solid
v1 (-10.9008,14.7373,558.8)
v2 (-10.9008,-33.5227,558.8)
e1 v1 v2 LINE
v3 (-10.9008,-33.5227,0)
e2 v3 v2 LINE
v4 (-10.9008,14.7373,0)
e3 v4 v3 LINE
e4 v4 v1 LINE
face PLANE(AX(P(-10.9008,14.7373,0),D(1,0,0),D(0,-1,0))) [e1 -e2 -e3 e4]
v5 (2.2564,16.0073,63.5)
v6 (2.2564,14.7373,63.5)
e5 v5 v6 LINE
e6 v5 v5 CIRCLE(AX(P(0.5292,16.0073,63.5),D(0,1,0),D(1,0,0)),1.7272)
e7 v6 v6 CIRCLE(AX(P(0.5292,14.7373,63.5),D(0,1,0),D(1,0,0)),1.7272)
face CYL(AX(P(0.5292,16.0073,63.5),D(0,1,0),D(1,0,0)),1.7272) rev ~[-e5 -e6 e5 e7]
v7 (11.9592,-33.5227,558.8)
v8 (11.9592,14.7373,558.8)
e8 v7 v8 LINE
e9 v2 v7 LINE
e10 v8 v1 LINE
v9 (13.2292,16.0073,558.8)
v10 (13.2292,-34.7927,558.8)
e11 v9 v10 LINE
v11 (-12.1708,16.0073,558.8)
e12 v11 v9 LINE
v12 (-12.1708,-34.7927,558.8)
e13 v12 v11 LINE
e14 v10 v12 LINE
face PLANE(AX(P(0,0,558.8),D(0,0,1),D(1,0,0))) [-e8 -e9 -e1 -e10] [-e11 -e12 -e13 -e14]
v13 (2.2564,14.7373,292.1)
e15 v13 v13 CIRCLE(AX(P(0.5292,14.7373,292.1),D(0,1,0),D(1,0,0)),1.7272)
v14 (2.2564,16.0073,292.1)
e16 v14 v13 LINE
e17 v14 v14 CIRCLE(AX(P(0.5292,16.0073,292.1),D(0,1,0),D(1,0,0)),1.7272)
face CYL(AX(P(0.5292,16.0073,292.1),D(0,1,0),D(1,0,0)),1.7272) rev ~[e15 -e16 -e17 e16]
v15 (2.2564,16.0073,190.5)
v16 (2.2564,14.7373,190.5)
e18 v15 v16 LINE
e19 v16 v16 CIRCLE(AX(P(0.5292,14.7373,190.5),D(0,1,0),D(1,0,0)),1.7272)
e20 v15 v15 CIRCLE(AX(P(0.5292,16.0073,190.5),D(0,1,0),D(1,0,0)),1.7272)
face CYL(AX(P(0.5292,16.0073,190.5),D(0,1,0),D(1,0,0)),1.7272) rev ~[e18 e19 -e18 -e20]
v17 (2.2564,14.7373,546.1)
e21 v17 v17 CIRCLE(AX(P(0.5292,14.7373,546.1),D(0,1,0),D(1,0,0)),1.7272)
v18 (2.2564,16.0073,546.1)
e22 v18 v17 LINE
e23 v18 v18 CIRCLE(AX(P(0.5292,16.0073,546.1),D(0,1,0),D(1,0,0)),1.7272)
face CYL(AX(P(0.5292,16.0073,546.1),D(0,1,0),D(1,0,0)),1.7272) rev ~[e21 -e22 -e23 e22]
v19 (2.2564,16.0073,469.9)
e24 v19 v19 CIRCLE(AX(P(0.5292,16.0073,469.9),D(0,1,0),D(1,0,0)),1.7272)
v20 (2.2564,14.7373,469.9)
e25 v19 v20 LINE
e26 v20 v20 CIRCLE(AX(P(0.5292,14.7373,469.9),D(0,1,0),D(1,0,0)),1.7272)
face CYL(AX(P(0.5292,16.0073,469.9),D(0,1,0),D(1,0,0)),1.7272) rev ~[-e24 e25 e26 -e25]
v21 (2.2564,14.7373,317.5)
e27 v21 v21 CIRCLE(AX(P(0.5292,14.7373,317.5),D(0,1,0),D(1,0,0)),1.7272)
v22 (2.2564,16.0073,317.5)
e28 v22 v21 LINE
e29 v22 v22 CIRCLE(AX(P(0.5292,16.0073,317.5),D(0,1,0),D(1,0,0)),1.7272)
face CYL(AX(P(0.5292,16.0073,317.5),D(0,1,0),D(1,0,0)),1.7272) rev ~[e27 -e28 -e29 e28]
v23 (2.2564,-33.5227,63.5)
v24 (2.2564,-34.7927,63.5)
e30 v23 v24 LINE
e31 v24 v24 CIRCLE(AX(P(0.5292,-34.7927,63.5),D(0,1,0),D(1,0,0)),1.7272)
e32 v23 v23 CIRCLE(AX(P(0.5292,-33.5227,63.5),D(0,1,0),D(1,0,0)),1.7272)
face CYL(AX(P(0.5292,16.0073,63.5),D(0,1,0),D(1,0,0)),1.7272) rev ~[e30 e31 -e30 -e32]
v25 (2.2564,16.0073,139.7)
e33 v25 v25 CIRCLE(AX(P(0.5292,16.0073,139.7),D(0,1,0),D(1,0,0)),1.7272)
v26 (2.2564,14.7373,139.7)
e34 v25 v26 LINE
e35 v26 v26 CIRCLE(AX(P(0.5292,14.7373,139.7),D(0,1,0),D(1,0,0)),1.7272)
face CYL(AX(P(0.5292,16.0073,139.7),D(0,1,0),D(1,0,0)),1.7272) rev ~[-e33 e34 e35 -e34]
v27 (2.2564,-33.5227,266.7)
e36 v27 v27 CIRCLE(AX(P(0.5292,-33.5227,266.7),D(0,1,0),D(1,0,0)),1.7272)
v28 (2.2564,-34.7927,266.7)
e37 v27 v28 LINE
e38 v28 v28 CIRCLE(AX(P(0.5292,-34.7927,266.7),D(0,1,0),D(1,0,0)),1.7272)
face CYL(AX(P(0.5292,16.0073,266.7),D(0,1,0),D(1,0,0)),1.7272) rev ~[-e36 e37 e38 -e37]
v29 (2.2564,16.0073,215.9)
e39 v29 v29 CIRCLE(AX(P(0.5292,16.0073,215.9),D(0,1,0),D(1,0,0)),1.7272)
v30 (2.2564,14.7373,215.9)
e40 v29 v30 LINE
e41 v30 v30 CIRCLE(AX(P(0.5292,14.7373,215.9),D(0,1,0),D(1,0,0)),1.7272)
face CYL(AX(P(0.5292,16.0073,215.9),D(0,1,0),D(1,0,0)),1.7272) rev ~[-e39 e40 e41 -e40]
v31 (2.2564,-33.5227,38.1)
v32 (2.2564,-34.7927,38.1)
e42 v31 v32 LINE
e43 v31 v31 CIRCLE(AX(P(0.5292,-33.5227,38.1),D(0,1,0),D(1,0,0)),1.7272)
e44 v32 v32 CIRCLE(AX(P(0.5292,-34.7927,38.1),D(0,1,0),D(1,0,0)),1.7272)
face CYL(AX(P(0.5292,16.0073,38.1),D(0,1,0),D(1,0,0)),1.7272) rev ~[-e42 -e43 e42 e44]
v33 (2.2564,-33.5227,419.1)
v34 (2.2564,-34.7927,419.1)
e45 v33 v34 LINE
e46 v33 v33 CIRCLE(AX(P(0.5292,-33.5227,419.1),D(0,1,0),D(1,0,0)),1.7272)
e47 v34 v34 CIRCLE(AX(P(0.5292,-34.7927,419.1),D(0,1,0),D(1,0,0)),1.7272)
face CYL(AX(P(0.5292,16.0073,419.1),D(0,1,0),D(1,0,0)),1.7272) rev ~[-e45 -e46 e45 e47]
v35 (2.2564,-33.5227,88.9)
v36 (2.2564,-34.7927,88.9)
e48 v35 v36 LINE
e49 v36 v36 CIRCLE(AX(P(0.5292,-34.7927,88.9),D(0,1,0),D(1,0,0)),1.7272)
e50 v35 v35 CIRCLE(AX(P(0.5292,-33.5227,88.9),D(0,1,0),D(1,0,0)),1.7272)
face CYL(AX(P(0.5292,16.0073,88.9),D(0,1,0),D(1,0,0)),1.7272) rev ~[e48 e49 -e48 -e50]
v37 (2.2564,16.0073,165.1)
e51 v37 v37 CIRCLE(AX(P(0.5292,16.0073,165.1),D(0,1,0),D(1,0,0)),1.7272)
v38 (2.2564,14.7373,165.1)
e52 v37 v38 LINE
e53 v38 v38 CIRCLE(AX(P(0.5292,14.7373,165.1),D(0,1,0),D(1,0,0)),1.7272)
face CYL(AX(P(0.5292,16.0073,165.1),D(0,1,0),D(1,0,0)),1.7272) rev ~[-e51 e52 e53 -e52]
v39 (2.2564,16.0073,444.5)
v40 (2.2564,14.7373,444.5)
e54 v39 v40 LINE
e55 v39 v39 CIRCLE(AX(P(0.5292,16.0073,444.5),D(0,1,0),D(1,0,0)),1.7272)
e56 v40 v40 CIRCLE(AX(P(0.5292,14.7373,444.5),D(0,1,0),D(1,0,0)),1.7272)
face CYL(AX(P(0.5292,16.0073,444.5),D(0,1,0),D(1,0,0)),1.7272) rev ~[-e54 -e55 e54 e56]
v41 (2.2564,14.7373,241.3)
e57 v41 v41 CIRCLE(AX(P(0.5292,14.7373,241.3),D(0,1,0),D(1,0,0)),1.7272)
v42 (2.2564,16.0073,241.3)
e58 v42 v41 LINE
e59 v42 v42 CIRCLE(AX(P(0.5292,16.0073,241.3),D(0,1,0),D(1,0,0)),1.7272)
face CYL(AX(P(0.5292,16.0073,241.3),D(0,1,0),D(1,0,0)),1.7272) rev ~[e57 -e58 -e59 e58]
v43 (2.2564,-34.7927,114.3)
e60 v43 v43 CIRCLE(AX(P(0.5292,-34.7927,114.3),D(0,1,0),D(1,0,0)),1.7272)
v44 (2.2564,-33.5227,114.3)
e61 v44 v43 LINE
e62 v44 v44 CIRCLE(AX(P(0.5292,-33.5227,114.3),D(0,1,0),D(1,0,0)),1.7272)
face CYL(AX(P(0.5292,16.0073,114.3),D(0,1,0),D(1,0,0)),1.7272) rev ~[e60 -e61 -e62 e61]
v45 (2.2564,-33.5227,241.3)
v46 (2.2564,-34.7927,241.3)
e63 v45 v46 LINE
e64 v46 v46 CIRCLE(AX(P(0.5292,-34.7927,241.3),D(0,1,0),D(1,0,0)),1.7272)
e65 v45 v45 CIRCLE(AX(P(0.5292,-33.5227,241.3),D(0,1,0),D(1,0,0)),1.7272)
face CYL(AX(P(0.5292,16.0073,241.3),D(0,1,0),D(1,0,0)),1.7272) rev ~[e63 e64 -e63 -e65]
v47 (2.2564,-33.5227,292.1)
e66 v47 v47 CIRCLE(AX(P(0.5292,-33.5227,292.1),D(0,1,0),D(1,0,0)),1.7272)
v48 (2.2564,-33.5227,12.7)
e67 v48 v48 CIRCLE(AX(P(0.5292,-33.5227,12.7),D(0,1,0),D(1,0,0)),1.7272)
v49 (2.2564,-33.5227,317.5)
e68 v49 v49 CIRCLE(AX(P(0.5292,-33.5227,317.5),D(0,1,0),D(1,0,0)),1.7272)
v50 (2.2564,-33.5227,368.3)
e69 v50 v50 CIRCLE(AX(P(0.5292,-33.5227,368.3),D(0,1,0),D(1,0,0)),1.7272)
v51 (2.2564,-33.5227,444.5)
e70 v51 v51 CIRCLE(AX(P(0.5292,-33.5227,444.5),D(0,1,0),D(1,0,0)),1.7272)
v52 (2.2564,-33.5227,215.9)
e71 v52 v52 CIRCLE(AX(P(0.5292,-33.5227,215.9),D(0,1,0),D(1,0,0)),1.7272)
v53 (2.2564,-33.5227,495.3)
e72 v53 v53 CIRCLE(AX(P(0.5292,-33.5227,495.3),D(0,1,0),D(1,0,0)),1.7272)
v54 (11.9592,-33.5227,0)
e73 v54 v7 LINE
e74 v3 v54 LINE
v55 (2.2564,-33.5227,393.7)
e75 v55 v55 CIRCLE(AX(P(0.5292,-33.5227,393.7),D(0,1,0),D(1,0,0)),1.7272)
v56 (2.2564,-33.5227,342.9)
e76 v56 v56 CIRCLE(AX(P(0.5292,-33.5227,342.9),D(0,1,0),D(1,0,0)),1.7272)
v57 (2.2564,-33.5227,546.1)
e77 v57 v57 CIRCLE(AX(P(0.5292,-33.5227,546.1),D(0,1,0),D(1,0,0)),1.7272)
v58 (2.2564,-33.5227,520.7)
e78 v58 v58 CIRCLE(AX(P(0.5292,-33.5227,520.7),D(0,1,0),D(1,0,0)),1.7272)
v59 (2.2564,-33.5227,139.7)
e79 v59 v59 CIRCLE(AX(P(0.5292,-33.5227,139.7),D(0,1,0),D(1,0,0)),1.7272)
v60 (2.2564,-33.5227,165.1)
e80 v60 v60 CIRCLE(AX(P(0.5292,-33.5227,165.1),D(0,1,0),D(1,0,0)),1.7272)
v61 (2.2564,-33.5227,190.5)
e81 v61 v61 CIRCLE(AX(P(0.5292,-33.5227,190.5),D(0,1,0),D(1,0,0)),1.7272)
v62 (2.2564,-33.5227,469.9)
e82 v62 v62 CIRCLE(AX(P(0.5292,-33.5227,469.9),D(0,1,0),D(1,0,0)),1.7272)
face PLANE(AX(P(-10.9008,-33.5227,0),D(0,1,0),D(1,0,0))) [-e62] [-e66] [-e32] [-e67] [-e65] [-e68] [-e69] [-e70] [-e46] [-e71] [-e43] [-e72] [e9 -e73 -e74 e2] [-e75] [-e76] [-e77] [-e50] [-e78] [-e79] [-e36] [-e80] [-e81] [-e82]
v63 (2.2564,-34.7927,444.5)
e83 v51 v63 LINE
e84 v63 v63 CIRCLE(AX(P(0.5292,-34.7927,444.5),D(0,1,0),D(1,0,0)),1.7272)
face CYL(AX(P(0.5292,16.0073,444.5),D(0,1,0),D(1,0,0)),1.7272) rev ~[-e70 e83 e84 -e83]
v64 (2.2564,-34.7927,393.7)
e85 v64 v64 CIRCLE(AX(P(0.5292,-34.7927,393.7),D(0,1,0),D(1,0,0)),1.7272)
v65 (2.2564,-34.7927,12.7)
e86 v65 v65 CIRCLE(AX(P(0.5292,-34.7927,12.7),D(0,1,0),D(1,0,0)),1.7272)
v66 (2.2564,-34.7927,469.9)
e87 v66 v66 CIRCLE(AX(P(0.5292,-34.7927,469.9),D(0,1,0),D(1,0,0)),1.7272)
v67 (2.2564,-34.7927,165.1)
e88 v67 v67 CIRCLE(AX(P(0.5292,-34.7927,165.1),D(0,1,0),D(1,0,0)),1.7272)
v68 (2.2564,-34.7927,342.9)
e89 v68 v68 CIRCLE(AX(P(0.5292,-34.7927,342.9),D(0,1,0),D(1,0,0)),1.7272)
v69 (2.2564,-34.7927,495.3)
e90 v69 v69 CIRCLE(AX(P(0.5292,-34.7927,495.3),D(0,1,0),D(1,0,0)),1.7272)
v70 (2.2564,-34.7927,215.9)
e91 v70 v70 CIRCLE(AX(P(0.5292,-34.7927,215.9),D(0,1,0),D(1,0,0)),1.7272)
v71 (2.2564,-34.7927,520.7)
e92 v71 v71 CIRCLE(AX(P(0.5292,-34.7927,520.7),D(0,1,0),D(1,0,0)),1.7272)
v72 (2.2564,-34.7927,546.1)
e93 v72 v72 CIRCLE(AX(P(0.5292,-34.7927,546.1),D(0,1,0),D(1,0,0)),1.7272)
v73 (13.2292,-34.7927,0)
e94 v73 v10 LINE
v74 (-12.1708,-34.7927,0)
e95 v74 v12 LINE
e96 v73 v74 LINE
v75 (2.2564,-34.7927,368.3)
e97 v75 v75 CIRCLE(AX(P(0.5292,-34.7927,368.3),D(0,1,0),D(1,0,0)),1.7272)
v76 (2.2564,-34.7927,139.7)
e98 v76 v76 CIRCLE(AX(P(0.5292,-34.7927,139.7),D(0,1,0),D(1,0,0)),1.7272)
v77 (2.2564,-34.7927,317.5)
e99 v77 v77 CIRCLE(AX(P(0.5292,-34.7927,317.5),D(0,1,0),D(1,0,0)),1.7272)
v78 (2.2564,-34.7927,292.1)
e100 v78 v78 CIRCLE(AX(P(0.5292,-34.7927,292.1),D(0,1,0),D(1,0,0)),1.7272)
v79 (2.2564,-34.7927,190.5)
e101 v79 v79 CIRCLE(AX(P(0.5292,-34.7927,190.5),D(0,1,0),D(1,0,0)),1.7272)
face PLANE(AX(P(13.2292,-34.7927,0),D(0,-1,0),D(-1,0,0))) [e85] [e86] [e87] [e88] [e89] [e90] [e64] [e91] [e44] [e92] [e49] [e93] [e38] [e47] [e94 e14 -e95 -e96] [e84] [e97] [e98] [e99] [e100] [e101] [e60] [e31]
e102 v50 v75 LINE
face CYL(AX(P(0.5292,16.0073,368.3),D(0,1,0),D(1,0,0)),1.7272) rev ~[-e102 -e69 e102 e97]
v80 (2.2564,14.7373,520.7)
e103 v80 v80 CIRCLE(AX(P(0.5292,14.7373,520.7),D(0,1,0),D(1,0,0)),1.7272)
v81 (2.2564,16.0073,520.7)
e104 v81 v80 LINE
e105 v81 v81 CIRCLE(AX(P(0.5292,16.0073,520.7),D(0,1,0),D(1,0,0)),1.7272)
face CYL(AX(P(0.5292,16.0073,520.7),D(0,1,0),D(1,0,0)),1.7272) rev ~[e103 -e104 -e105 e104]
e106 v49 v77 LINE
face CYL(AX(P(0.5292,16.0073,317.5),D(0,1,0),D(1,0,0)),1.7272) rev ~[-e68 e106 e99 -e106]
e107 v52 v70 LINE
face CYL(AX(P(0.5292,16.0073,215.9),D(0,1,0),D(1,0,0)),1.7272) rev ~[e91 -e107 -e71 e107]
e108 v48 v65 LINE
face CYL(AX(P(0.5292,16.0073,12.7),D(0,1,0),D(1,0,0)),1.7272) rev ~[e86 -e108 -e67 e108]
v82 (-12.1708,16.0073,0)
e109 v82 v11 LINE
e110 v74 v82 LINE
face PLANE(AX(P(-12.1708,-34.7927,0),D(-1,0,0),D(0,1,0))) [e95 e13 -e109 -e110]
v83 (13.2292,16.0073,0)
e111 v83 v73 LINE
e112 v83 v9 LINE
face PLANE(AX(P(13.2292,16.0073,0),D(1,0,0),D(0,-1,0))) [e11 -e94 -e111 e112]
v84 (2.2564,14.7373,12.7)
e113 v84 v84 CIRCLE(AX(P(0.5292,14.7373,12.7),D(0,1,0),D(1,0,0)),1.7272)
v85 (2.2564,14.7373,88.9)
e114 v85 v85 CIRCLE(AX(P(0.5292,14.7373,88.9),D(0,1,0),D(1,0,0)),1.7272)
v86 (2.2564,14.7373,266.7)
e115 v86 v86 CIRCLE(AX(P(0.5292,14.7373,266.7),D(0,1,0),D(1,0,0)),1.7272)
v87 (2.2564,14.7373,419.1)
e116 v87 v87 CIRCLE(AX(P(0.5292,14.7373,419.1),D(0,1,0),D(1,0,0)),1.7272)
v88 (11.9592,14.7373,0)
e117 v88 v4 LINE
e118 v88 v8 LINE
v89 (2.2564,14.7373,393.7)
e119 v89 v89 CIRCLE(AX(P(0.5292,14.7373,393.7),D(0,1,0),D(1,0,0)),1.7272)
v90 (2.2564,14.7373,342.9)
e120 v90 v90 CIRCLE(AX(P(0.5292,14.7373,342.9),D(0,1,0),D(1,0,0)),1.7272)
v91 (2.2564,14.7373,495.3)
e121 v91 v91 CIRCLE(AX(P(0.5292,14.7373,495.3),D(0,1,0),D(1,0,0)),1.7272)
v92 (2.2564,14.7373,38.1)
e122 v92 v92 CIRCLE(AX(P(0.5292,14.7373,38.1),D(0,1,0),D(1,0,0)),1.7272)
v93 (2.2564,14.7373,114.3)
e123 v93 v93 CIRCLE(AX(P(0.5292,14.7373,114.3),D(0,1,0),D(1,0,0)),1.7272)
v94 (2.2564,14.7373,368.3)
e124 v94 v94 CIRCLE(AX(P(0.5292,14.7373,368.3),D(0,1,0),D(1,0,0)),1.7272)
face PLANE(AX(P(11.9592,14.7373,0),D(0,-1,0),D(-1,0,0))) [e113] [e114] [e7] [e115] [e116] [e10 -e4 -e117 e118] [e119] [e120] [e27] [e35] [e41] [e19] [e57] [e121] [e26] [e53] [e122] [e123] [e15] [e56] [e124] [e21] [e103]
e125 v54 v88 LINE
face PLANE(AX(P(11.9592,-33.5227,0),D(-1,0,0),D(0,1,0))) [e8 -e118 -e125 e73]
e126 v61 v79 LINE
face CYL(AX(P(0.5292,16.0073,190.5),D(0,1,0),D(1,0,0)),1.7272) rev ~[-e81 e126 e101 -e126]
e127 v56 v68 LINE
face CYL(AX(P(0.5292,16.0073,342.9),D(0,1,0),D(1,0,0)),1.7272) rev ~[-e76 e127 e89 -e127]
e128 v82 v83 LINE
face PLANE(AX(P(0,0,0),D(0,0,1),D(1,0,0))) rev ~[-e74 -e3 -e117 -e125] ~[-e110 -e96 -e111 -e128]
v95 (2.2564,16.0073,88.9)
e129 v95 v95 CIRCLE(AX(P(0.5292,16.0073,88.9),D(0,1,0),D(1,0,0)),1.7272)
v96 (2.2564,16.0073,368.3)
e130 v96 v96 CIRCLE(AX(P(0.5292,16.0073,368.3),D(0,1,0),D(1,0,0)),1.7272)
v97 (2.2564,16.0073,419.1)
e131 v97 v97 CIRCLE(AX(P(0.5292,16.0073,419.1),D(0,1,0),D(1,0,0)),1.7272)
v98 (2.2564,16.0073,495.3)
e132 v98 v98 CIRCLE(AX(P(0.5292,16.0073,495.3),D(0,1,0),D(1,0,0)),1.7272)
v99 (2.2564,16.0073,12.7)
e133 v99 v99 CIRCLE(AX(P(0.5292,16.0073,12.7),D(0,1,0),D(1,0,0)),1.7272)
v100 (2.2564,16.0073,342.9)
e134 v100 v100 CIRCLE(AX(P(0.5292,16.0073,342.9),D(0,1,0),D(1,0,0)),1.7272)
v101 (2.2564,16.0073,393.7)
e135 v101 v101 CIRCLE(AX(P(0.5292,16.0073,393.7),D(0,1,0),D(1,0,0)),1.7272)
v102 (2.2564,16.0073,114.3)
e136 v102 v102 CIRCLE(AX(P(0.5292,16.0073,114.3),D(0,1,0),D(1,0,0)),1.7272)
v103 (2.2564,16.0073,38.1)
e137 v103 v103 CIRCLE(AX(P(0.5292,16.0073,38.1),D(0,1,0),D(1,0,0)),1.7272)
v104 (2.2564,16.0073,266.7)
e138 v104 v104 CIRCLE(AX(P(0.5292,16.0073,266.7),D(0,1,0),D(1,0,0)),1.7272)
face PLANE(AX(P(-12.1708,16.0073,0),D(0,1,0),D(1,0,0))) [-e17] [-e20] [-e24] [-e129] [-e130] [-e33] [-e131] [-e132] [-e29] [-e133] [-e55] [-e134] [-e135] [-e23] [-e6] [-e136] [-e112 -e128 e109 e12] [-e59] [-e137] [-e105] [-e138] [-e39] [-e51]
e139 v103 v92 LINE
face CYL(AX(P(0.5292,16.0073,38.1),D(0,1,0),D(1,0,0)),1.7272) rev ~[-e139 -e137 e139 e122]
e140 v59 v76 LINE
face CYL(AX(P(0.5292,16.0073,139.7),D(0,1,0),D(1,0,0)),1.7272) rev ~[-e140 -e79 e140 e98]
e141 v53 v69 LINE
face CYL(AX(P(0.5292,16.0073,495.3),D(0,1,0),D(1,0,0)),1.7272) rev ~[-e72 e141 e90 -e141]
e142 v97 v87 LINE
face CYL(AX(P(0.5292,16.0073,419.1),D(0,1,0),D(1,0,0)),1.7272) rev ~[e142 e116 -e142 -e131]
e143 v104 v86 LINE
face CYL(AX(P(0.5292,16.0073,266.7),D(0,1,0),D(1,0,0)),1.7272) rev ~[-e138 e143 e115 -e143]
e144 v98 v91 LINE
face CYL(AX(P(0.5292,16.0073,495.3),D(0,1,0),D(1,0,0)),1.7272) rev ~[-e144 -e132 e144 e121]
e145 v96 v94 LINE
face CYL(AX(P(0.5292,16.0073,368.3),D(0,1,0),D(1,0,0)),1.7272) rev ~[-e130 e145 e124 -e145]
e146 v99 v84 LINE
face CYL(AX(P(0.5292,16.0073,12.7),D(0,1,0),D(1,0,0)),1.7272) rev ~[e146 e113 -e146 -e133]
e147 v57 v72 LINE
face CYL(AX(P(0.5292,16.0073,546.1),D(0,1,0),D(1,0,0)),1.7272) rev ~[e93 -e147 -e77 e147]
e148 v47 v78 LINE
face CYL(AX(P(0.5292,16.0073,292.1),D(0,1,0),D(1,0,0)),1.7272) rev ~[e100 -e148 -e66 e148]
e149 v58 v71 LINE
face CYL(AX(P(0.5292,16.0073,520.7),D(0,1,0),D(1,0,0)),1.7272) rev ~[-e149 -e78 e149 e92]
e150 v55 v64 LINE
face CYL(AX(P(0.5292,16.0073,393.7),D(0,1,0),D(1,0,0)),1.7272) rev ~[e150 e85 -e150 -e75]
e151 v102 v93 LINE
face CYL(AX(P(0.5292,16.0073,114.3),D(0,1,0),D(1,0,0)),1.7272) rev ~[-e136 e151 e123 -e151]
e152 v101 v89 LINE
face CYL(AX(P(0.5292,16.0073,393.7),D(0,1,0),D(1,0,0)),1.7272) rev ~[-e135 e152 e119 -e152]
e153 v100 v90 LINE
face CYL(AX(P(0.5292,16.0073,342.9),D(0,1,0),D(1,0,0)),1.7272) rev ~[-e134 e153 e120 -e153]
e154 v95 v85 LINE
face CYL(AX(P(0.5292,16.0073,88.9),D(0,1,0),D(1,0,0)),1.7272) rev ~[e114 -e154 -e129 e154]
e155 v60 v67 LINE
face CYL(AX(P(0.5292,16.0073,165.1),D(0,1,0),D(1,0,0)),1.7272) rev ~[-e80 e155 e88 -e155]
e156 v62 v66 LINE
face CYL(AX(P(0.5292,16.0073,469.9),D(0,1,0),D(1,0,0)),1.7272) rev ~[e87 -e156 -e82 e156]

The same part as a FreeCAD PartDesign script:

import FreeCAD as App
import Part
import Sketcher
from FreeCAD import Vector
Q = App.Units.Quantity

doc = App.newDocument("Part")
body = doc.addObject("PartDesign::Body", "Body")

# Sketch on XY plane
sketch1 = body.newObject("Sketcher::SketchObject", "Sketch")
sketch1.AttachmentSupport = (doc.getObject("XY_Plane"), [""])
sketch1.MapMode = "FlatFace"
sketch1.addGeometry([
    Part.LineSegment(Vector(13.2292, 16.0073, 0), Vector(-12.1708, 16.0073, 0)),  # 0
    Part.LineSegment(Vector(-12.1708, 16.0073, 0), Vector(-12.1708, -34.7927, 0)),  # 1
    Part.LineSegment(Vector(-12.1708, -34.7927, 0), Vector(13.2292, -34.7927, 0)),  # 2
    Part.LineSegment(Vector(13.2292, -34.7927, 0), Vector(13.2292, 16.0073, 0)),  # 3
    Part.LineSegment(Vector(-10.9008, 14.7373, 0), Vector(11.9592, 14.7373, 0)),  # 4
    Part.LineSegment(Vector(11.9592, 14.7373, 0), Vector(11.9592, -33.5227, 0)),  # 5
    Part.LineSegment(Vector(11.9592, -33.5227, 0), Vector(-10.9008, -33.5227, 0)),  # 6
    Part.LineSegment(Vector(-10.9008, -33.5227, 0), Vector(-10.9008, 14.7373, 0)),  # 7
], False)
sketch1.addConstraint([
    Sketcher.Constraint("Coincident", 0, 2, 1, 1),
    Sketcher.Constraint("Coincident", 1, 2, 2, 1),
    Sketcher.Constraint("Coincident", 2, 2, 3, 1),
    Sketcher.Constraint("Coincident", 3, 2, 0, 1),
    Sketcher.Constraint("Coincident", 4, 2, 5, 1),
    Sketcher.Constraint("Coincident", 5, 2, 6, 1),
    Sketcher.Constraint("Coincident", 6, 2, 7, 1),
    Sketcher.Constraint("Coincident", 7, 2, 4, 1),
    Sketcher.Constraint("Horizontal", 0),
    Sketcher.Constraint("Vertical", 1),
    Sketcher.Constraint("Horizontal", 2),
    Sketcher.Constraint("Vertical", 3),
    Sketcher.Constraint("Horizontal", 4),
    Sketcher.Constraint("Vertical", 5),
    Sketcher.Constraint("Horizontal", 6),
    Sketcher.Constraint("Vertical", 7),
    Sketcher.Constraint("DistanceX", 0, 2, 0, 1, Q("1 in")),
    Sketcher.Constraint("DistanceY", 1, 2, 1, 1, Q("2 in")),
    Sketcher.Constraint("DistanceX", 4, 2, 3, 2, Q("0.05 in")),
    Sketcher.Constraint("DistanceY", 4, 2, 3, 2, Q("0.05 in")),
    Sketcher.Constraint("DistanceY", 2, 2, 5, 2, Q("0.05 in")),
    Sketcher.Constraint("DistanceX", 1, 2, 6, 2, Q("0.05 in")),
    Sketcher.Constraint("DistanceY", -1, 1, 0, 2, Q("0.6302 in")),
    Sketcher.Constraint("DistanceX", 0, 2, -1, 1, 12.1708),
])
pad1 = body.newObject("PartDesign::Pad", "Pad")
pad1.Profile = sketch1
pad1.Length = Q("22 in")

# Sketch on XZ plane
sketch2 = body.newObject("Sketcher::SketchObject", "Sketch001")
sketch2.AttachmentSupport = (doc.getObject("XZ_Plane"), [""])
sketch2.MapMode = "FlatFace"
sketch2.AttachmentOffset = App.Placement(Vector(0, 0, -0.6302087 * 25.4), App.Rotation())
sketch2.addGeometry(Part.Circle(Vector(0.5292, 12.7, 0), Vector(0, 0, 1), 1.7272), False)
sketch2.addConstraint([
    Sketcher.Constraint("Diameter", 0, Q("0.136 in")),
    Sketcher.Constraint("DistanceY", -1, 1, 0, 3, Q("0.5 in")),
    Sketcher.Constraint("DistanceX", -1, 1, 0, 3, 0.5292),
])
pocket1 = body.newObject("PartDesign::Pocket", "Pocket")
pocket1.Profile = sketch2
pocket1.Type = "ThroughAll"
pocket1.Reversed = True
doc.recompute()

linearpattern = body.newObject("PartDesign::LinearPattern", "LinearPattern")
linearpattern.Originals = [pocket1]
linearpattern.Direction = (doc.getObject("Z_Axis"), [""])
linearpattern.Mode = "offset"
linearpattern.Offset = Q("1 in")
linearpattern.Occurrences = 56
body.Tip = linearpattern

doc.recompute()
